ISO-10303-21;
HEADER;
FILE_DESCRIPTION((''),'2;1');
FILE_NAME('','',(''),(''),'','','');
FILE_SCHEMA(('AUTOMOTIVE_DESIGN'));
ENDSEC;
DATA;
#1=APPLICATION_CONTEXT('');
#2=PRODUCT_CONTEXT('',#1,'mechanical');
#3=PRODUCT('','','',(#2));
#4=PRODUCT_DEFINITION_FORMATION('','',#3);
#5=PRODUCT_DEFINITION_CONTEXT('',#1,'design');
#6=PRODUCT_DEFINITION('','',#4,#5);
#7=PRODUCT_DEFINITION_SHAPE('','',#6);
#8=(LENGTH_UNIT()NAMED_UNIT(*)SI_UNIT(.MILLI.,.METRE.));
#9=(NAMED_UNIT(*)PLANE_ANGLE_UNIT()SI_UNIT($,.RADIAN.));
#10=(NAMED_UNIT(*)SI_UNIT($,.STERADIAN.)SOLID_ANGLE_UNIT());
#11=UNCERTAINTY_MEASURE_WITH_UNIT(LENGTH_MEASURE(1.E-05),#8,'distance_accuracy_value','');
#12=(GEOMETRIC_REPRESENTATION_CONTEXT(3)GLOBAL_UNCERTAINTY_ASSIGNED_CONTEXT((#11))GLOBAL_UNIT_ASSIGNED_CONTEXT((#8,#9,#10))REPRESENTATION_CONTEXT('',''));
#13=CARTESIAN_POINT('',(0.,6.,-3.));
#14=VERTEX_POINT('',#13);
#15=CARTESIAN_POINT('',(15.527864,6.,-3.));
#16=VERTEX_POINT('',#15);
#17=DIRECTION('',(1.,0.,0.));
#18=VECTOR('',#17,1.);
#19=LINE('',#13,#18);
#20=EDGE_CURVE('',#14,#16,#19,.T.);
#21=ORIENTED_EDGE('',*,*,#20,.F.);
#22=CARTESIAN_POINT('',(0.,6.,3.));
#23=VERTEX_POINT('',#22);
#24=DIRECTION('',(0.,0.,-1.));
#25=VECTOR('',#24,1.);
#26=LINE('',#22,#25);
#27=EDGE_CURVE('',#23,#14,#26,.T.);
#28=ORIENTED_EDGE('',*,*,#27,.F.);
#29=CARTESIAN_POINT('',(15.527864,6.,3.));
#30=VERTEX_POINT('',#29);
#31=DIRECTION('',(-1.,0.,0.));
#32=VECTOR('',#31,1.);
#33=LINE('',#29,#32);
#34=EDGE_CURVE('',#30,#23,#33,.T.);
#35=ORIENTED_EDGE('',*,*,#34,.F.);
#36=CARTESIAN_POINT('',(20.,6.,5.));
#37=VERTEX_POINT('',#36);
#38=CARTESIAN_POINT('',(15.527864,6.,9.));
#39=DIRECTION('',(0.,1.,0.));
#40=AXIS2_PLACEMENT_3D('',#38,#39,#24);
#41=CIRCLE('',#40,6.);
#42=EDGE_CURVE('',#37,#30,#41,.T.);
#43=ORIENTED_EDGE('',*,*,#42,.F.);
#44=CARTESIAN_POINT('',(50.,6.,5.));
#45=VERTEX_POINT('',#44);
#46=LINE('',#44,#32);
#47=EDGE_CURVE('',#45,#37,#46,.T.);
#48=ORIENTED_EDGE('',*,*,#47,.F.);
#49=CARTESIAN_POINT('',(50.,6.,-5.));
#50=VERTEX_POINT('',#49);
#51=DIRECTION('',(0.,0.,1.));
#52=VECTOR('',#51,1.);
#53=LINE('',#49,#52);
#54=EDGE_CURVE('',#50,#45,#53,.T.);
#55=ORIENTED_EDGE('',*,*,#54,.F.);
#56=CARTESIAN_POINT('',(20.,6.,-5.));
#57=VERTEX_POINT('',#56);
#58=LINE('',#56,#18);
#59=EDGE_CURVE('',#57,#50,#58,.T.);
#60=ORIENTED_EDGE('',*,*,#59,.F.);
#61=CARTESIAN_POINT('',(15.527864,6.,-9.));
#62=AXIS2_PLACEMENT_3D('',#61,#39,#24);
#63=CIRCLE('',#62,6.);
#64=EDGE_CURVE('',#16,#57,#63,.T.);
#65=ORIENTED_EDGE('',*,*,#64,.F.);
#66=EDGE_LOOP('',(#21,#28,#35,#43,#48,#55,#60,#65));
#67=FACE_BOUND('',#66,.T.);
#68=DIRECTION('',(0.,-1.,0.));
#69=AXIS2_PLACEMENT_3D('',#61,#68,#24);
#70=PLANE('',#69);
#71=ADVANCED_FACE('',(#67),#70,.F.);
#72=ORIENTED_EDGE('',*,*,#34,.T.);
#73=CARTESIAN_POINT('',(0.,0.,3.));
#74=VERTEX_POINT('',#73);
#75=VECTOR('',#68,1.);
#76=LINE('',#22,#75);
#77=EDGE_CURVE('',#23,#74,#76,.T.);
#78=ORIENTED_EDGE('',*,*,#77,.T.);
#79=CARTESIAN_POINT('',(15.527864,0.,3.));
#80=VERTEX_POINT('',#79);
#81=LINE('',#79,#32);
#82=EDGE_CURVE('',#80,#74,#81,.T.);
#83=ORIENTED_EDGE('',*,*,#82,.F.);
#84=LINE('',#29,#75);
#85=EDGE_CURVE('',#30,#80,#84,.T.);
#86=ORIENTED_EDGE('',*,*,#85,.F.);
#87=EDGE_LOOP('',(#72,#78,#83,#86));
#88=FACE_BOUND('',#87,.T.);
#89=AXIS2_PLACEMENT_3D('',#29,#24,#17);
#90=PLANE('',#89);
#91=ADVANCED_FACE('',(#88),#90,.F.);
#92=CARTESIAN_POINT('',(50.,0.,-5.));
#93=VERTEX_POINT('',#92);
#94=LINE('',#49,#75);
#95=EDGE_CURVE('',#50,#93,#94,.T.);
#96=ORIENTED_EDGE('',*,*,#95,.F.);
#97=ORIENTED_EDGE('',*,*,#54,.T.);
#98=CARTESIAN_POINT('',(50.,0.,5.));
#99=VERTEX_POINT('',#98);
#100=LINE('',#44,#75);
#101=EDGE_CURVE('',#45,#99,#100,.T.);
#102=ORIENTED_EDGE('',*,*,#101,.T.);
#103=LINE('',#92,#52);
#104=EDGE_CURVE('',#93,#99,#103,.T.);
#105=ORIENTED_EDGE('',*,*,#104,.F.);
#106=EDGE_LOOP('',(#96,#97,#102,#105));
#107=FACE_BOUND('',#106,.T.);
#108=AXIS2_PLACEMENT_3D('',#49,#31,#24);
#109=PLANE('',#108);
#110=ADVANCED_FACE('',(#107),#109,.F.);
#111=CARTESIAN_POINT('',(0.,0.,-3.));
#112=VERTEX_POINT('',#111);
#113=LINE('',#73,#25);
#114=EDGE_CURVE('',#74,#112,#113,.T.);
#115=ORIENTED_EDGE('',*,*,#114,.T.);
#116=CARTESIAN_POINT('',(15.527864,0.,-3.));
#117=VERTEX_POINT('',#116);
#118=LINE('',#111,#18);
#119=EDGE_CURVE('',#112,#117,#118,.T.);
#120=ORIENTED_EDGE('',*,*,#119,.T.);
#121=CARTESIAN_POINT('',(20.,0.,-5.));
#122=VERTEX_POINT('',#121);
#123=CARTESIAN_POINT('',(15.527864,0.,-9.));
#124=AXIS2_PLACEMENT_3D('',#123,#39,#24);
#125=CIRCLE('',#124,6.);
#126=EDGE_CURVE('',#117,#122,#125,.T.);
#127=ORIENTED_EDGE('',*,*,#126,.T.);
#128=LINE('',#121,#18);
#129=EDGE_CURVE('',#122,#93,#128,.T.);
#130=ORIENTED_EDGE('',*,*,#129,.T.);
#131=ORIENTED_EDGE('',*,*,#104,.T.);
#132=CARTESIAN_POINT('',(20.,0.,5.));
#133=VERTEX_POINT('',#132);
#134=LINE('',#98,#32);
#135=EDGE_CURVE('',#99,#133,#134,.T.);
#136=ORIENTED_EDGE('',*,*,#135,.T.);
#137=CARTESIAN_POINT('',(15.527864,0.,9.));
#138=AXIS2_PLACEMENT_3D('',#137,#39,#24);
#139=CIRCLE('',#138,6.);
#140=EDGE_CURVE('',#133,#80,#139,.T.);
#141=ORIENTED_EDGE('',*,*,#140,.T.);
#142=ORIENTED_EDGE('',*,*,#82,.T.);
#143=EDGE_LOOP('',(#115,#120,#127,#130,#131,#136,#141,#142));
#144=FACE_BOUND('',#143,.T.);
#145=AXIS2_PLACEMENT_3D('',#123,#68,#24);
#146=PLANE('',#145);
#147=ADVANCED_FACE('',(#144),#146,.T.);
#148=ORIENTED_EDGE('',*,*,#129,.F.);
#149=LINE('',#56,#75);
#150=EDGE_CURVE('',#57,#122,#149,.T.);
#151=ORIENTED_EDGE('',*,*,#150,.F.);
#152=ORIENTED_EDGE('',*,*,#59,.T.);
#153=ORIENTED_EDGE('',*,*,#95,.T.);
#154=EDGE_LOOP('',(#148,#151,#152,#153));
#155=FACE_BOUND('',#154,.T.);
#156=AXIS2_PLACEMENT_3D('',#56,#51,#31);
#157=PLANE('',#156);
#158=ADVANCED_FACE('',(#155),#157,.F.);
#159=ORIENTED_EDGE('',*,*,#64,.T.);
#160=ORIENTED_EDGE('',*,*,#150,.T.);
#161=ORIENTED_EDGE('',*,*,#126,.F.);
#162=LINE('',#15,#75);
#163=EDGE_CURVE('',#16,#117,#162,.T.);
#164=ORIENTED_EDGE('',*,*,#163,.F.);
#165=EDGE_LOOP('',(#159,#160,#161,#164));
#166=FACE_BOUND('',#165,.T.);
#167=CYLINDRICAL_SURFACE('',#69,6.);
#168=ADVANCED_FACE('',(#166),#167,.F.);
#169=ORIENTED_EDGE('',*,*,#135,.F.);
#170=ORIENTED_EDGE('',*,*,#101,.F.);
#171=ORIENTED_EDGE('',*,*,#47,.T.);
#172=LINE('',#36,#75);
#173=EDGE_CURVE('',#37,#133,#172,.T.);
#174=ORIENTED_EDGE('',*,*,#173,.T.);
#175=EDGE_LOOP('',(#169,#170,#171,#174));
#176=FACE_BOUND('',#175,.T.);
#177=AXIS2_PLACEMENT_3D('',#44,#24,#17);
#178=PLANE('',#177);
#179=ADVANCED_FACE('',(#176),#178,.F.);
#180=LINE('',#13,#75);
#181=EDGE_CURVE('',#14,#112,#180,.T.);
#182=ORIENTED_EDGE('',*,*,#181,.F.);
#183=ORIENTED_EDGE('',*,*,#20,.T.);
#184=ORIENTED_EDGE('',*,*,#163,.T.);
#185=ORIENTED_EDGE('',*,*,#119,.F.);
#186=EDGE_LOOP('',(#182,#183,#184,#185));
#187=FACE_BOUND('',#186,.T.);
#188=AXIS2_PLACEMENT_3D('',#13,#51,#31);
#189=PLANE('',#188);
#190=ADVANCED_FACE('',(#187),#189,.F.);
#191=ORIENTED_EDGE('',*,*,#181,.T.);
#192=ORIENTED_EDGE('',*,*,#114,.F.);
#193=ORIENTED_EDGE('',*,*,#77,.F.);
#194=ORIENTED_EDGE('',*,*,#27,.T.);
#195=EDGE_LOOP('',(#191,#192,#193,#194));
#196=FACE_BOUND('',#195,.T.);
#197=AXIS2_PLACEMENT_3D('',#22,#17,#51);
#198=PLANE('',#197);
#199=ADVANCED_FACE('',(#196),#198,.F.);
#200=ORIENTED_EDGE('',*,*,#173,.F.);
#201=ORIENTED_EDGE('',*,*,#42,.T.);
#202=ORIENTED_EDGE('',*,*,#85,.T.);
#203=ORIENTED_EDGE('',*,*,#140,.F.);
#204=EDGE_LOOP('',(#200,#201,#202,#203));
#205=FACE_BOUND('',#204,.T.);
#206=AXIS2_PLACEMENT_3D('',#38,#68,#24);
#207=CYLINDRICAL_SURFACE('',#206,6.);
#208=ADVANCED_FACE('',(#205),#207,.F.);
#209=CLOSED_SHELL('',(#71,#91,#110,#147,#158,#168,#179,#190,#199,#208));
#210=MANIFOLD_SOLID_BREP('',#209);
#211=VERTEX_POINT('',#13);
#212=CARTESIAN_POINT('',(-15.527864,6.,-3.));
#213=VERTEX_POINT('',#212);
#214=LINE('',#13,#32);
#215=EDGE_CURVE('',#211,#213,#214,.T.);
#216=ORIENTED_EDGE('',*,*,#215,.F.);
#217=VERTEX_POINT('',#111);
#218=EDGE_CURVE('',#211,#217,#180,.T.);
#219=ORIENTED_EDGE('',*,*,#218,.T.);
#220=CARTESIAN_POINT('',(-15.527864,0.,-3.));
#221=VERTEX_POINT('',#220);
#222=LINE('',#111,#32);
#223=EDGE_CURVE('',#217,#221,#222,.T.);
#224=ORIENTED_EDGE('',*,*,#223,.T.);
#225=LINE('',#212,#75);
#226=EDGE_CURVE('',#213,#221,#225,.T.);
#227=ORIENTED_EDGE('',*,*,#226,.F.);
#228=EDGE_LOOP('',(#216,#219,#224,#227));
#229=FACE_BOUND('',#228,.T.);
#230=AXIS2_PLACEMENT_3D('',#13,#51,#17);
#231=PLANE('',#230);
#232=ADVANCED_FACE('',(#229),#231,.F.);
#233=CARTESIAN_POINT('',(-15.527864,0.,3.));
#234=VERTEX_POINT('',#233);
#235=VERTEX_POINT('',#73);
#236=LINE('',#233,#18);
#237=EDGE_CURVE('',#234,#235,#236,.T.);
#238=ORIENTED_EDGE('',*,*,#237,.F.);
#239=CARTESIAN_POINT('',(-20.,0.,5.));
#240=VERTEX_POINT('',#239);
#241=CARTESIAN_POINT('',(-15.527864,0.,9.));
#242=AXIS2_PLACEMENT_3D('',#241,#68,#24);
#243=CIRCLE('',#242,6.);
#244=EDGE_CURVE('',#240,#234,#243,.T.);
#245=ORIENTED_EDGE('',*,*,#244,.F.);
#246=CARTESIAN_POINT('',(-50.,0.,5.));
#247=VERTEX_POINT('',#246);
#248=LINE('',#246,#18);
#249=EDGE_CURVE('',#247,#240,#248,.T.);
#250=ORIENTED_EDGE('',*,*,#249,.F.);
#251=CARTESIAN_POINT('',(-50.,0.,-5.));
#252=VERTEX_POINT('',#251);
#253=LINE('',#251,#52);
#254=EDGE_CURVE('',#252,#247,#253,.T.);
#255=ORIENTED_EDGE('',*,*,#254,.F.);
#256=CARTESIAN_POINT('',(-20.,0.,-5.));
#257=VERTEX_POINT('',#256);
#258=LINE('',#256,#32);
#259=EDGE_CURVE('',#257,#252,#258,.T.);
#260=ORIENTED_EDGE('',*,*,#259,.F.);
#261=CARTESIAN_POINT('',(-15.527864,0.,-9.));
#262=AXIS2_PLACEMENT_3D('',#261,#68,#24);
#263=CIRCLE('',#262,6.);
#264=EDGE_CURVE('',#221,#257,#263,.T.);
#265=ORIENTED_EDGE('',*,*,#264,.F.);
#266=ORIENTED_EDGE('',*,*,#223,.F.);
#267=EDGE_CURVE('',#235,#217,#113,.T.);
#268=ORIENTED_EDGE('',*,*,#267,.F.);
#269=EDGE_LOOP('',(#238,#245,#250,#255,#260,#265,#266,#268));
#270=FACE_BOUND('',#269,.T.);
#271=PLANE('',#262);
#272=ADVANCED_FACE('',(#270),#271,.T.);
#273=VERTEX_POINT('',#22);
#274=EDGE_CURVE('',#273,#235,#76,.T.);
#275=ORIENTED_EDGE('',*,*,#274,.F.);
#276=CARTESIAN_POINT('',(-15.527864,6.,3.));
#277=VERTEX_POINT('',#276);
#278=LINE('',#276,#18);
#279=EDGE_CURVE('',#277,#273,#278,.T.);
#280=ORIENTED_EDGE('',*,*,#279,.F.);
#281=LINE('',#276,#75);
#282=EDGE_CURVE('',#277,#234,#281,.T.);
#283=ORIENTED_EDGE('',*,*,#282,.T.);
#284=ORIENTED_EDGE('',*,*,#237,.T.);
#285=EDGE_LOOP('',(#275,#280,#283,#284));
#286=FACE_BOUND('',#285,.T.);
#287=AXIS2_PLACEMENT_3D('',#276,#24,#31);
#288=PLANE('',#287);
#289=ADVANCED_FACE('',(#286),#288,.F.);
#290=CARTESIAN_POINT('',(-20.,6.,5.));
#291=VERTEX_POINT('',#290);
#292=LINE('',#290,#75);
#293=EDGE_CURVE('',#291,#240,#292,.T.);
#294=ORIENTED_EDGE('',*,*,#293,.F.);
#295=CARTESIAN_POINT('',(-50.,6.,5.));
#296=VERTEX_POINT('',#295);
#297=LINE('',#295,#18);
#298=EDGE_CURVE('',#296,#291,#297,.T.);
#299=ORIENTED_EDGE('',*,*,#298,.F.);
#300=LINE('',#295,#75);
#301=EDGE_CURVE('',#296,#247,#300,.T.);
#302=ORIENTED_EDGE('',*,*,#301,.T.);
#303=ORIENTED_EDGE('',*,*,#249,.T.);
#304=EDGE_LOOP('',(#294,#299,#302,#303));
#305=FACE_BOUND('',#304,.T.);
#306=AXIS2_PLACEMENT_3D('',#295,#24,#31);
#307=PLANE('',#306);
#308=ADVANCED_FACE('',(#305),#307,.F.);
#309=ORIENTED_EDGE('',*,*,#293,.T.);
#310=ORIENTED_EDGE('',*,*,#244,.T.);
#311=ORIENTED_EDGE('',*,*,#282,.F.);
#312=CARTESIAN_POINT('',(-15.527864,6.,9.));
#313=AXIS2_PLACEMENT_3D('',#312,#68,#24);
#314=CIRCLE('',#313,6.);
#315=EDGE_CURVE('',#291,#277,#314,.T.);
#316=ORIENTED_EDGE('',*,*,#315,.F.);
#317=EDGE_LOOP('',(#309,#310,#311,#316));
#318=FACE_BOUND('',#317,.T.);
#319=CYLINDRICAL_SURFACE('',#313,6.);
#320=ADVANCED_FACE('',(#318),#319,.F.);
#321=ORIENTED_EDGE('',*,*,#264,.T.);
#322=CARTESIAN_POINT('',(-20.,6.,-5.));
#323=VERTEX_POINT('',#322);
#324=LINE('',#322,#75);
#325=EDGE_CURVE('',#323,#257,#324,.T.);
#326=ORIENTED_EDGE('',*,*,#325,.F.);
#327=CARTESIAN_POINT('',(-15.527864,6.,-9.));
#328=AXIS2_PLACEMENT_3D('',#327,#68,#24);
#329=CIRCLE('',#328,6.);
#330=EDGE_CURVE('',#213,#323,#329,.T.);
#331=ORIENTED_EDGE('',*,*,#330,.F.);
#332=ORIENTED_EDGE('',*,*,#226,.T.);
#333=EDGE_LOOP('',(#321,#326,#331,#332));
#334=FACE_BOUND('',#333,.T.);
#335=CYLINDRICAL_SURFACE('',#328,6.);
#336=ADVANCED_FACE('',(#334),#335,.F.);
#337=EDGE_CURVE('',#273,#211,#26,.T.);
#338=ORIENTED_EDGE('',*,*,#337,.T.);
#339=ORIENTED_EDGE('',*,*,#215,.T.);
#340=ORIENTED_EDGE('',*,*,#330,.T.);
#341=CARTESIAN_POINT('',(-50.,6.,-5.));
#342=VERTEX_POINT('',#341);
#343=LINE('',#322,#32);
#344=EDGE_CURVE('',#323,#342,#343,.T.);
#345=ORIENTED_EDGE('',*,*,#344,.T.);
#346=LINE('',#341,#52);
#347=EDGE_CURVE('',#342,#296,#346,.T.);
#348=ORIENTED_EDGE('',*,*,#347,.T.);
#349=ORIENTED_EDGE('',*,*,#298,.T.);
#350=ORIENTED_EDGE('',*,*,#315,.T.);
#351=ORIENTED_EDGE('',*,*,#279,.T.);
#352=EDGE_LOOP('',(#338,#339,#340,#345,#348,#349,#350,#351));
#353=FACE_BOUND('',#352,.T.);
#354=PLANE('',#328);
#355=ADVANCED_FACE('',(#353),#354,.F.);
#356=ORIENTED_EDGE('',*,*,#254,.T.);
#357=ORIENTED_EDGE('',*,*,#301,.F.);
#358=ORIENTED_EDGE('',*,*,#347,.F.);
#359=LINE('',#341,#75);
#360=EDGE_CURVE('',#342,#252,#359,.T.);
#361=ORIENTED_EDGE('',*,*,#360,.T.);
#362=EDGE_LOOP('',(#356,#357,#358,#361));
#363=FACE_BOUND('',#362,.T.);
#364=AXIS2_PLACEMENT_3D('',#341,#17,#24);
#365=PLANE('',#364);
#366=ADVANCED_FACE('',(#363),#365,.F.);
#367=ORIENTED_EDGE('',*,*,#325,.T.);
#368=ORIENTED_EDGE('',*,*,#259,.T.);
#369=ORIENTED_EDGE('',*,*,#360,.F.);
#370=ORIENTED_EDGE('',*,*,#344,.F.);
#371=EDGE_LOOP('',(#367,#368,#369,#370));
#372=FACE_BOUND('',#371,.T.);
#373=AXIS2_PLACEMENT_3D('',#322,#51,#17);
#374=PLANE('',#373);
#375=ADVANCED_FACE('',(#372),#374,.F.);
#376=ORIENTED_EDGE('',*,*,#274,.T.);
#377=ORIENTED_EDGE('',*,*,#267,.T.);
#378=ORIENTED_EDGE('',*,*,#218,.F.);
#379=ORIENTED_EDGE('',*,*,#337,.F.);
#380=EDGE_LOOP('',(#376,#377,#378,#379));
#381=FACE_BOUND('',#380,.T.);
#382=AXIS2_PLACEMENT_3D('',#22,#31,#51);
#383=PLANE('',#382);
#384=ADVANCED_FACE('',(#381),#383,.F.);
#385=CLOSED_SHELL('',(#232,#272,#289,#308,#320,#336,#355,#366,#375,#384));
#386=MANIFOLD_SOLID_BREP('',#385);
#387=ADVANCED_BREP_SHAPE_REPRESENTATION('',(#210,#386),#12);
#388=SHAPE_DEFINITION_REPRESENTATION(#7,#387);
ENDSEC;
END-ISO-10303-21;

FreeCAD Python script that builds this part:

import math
import FreeCAD as App
import Part
import Sketcher

V = App.Vector

doc = App.newDocument("Part")
body = doc.addObject("PartDesign::Body", "Body")

sketch1 = body.newObject("Sketcher::SketchObject", "Sketch")
sketch1.AttachmentSupport = (doc.getObject("XZ_Plane"), [""])
sketch1.MapMode = "FlatFace"
sketch1.addGeometry([
    Part.LineSegment(V(0, 3, 0), V(0, -3, 0)),
    Part.LineSegment(V(0, -3, 0), V(-15.5, -3, 0)),
    Part.ArcOfCircle(Part.Circle(V(-15.5, -9, 0), V(0, 0, 1), 6), math.radians(90), math.radians(138)),
    Part.LineSegment(V(-20, -5, 0), V(-50, -5, 0)),
    Part.LineSegment(V(-50, -5, 0), V(-50, 5, 0)),
    Part.LineSegment(V(-50, 5, 0), V(-20, 5, 0)),
    Part.ArcOfCircle(Part.Circle(V(-15.5, 9, 0), V(0, 0, 1), 6), math.radians(-138), math.radians(-90)),
    Part.LineSegment(V(-15.5, 3, 0), V(0, 3, 0)),
], False)
sketch1.addConstraint([
    Sketcher.Constraint("Coincident", 0, 2, 1, 1),
    Sketcher.Constraint("Tangent", 1, 2, 2, 1),
    Sketcher.Constraint("Coincident", 2, 2, 3, 1),
    Sketcher.Constraint("Coincident", 3, 2, 4, 1),
    Sketcher.Constraint("Coincident", 4, 2, 5, 1),
    Sketcher.Constraint("Coincident", 5, 2, 6, 1),
    Sketcher.Constraint("Tangent", 6, 2, 7, 1),
    Sketcher.Constraint("Coincident", 7, 2, 0, 1),
    Sketcher.Constraint("Vertical", 0),
    Sketcher.Constraint("Horizontal", 1),
    Sketcher.Constraint("Horizontal", 3),
    Sketcher.Constraint("Vertical", 4),
    Sketcher.Constraint("Horizontal", 5),
    Sketcher.Constraint("Horizontal", 7),
    Sketcher.Constraint("Equal", 2, 6),
    Sketcher.Constraint("Symmetric", 0, 2, 7, 2, -1, 1),
    Sketcher.Constraint("Symmetric", 2, 2, 5, 2, -1),
    Sketcher.Constraint("Radius", 2, 6.0),
    Sketcher.Constraint("DistanceX", 3, 2, 3, 1, 30.0),
    Sketcher.Constraint("DistanceY", 0, 2, 0, 1, 6.0),
    Sketcher.Constraint("DistanceY", 4, 1, 4, 2, 10.0),
    Sketcher.Constraint("DistanceX", 2, 2, -1, 1, 20.0),
])
pad1 = body.newObject("PartDesign::Pad", "Pad")
pad1.Profile = sketch1
pad1.Length = 6
pad1.Reversed = True
body2 = doc.addObject("PartDesign::Body", "Body001")
doc.recompute()

mirroring = doc.addObject("Part::Mirroring", "Mirroring")
mirroring.Source = body
mirroring.Base = V(0, 0, 0)
mirroring.Normal = V(1, 0, 0)
body2.BaseFeature = mirroring
doc.recompute()
mirroring.Visibility = False

doc.recompute()
